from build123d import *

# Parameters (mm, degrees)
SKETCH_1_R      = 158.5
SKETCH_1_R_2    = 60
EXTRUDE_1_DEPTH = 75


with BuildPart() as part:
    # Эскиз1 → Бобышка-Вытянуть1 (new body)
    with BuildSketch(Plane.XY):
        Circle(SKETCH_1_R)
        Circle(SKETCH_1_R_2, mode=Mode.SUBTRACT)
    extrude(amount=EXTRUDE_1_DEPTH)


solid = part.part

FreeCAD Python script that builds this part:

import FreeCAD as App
import Part
import Sketcher
Q = App.Units.Quantity

doc = App.newDocument("Part")
body = doc.addObject("PartDesign::Body", "Body")

sketch1 = body.newObject("Sketcher::SketchObject", "Sketch")
sketch1.AttachmentSupport = (doc.getObject("XY_Plane"), [""])
sketch1.MapMode = "FlatFace"
sketch1.addGeometry([
    Part.Circle(App.Vector(0, 0, 0), App.Vector(0, 0, 1), 158.5),
    Part.Circle(App.Vector(0, 0, 0), App.Vector(0, 0, 1), 60),
], False)
sketch1.addConstraint([
    Sketcher.Constraint("Coincident", 0, 3, -1, 1),
    Sketcher.Constraint("Coincident", 1, 3, -1, 1),
    Sketcher.Constraint("Diameter", 0, Q("317 mm")),
    Sketcher.Constraint("Diameter", 1, Q("120 mm")),
])
pad1 = body.newObject("PartDesign::Pad", "Pad")
pad1.Profile = sketch1
pad1.Length = 75

doc.recompute()
